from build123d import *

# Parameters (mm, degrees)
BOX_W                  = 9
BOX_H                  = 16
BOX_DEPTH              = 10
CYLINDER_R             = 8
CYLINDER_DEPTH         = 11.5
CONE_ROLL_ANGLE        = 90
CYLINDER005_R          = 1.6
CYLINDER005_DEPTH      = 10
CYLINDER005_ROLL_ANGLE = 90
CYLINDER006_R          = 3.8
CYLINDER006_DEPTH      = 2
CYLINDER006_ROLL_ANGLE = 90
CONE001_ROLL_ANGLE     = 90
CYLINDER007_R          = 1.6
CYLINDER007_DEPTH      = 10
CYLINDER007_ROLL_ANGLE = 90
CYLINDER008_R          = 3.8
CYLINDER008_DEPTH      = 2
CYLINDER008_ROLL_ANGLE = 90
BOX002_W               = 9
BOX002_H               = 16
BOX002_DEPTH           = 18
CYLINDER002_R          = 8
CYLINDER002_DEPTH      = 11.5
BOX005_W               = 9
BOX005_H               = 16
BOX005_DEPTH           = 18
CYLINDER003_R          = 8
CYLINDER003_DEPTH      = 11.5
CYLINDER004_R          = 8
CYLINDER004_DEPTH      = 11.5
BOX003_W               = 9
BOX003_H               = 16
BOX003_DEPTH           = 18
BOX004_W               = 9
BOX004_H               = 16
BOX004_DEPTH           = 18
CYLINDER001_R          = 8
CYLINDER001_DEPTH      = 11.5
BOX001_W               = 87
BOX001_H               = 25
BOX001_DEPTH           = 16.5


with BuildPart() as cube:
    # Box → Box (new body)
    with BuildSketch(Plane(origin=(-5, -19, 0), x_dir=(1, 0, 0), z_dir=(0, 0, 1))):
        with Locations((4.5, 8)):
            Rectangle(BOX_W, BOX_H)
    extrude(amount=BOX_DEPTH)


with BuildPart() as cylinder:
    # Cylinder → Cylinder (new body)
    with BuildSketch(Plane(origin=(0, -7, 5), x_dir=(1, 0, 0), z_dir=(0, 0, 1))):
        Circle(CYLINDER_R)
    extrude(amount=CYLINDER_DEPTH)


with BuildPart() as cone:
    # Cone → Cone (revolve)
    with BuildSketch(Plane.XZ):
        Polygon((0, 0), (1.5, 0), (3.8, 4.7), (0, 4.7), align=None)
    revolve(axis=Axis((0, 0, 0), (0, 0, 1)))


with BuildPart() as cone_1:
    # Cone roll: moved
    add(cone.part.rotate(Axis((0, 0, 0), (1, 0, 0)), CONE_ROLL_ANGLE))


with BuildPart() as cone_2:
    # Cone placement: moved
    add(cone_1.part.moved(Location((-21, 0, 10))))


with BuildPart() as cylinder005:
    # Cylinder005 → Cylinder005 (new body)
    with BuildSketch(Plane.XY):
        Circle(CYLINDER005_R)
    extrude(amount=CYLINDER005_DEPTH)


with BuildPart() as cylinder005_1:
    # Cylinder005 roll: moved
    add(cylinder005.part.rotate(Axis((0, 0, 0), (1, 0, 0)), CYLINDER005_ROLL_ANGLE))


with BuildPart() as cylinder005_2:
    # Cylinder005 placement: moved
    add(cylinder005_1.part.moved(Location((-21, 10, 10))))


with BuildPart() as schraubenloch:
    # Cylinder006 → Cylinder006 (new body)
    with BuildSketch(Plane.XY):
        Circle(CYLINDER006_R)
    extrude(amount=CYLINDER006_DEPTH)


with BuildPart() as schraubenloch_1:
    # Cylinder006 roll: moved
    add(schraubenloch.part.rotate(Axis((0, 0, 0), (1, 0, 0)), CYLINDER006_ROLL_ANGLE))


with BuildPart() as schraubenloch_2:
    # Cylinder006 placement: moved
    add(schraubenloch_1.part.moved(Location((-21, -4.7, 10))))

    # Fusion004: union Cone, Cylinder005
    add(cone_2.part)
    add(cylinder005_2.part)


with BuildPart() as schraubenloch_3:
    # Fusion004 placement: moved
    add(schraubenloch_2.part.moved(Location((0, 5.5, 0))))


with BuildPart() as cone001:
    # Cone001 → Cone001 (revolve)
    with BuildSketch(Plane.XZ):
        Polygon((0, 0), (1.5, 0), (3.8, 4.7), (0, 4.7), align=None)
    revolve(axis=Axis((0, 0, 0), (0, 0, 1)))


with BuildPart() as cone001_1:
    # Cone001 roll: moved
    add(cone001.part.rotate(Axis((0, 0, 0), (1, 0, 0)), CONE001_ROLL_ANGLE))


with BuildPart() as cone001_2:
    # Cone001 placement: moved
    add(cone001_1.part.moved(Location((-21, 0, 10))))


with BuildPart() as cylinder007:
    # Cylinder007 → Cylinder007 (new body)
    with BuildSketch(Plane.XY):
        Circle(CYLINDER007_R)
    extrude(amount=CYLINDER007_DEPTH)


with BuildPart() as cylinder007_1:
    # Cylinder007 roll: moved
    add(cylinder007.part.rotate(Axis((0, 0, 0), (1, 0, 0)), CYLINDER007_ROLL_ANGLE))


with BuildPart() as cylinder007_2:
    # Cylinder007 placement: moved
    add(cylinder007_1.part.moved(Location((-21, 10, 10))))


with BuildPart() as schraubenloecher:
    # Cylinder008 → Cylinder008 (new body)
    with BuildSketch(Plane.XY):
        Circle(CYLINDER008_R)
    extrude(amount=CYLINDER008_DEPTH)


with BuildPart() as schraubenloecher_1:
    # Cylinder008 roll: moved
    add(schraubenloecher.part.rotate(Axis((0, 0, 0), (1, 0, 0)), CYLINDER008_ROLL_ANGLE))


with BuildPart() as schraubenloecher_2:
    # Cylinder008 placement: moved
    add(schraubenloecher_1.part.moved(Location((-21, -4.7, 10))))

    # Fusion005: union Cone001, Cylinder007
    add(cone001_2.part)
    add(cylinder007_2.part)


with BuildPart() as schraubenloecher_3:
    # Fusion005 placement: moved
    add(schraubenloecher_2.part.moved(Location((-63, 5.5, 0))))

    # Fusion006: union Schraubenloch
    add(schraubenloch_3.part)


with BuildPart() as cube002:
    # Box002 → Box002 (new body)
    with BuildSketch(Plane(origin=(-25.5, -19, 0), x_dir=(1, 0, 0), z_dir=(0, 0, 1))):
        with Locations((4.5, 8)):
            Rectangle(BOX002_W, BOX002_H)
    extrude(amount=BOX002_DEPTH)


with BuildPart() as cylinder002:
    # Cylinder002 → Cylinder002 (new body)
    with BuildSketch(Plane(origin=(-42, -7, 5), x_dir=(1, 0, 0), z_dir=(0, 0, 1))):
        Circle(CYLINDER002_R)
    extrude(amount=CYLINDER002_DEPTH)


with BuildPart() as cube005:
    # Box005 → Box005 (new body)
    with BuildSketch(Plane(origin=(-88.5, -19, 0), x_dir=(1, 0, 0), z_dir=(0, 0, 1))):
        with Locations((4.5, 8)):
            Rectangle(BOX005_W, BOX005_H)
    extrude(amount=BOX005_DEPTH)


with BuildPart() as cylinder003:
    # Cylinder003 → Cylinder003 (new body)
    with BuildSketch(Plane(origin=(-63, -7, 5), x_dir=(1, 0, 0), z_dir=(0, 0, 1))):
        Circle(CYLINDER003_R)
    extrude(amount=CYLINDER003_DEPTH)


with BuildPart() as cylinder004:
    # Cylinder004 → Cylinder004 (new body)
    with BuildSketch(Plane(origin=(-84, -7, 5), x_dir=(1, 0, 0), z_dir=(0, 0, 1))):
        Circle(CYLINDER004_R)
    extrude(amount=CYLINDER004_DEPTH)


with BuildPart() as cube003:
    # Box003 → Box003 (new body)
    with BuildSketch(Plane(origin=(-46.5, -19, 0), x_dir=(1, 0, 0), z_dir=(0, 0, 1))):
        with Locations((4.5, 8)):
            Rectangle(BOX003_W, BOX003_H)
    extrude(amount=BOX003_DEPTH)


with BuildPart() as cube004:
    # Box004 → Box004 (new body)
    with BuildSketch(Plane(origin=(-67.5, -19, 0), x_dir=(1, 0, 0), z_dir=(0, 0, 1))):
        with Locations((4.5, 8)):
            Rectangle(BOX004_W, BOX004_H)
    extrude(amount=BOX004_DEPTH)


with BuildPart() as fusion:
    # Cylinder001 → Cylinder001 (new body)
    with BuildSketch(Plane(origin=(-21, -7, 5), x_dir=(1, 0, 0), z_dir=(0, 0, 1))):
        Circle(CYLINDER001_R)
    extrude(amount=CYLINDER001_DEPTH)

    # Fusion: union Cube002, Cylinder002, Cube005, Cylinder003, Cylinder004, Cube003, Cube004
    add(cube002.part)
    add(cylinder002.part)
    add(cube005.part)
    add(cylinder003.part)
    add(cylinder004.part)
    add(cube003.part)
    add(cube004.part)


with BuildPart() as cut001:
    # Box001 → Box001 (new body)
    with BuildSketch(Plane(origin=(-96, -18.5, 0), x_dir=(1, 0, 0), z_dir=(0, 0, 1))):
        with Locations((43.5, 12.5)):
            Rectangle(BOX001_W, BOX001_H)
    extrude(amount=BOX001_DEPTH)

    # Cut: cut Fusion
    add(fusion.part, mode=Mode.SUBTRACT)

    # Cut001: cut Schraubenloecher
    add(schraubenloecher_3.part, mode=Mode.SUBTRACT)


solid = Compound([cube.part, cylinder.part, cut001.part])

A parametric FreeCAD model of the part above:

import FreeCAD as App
import Part
import Sketcher

V = App.Vector

doc = App.newDocument("Part")
body = doc.addObject("PartDesign::Body", "Body")

sketch1 = body.newObject("Sketcher::SketchObject", "Sketch")
sketch1.AttachmentSupport = (doc.getObject("XY_Plane"), [""])
sketch1.MapMode = "FlatFace"
sketch1.addGeometry([
    Part.LineSegment(V(-5, -3, 0), V(-5, -19, 0)),
    Part.LineSegment(V(-5, -19, 0), V(4, -19, 0)),
    Part.LineSegment(V(4, -19, 0), V(4, -3, 0)),
    Part.LineSegment(V(4, -3, 0), V(-5, -3, 0)),
], False)
sketch1.addConstraint([
    Sketcher.Constraint("Coincident", 0, 2, 1, 1),
    Sketcher.Constraint("Coincident", 1, 2, 2, 1),
    Sketcher.Constraint("Coincident", 2, 2, 3, 1),
    Sketcher.Constraint("Coincident", 3, 2, 0, 1),
    Sketcher.Constraint("Vertical", 0),
    Sketcher.Constraint("Horizontal", 1),
    Sketcher.Constraint("Vertical", 2),
    Sketcher.Constraint("Horizontal", 3),
    Sketcher.Constraint("DistanceX", 1, 1, 1, 2, 9.0),
    Sketcher.Constraint("DistanceY", 0, 2, 0, 1, 16.0),
    Sketcher.Constraint("DistanceX", 0, 2, -1, 1, 5.0),
    Sketcher.Constraint("DistanceY", 0, 2, -1, 1, 19.0),
])
pad1 = body.newObject("PartDesign::Pad", "Pad")
pad1.Profile = sketch1
pad1.Length = 10
body2 = doc.addObject("PartDesign::Body", "Body001")

sketch2 = body2.newObject("Sketcher::SketchObject", "Sketch001")
sketch2.AttachmentSupport = (doc.getObject("XY_Plane001"), [""])
sketch2.MapMode = "FlatFace"
sketch2.AttachmentOffset = App.Placement(V(0, 0, 5), App.Rotation())
sketch2.addGeometry(Part.Circle(V(0, -7, 0), V(0, 0, 1), 8), False)
sketch2.addConstraint([
    Sketcher.Constraint("PointOnObject", 0, 3, -2),
    Sketcher.Constraint("Diameter", 0, 16.0),
    Sketcher.Constraint("DistanceY", 0, 3, -1, 1, 7.0),
])
pad2 = body2.newObject("PartDesign::Pad", "Pad001")
pad2.Profile = sketch2
pad2.Length = 11.5
body3 = doc.addObject("PartDesign::Body", "Body002")

sketch3 = body3.newObject("Sketcher::SketchObject", "Sketch002")
sketch3.AttachmentSupport = (doc.getObject("XZ_Plane002"), [""])
sketch3.MapMode = "FlatFace"
sketch3.addGeometry([
    Part.LineSegment(V(0, 0, 0), V(1.5, 0, 0)),
    Part.LineSegment(V(1.5, 0, 0), V(3.8, 4.7, 0)),
    Part.LineSegment(V(3.8, 4.7, 0), V(0, 4.7, 0)),
    Part.LineSegment(V(0, 4.7, 0), V(0, 0, 0)),
], False)
sketch3.addConstraint([
    Sketcher.Constraint("Coincident", 0, 2, 1, 1),
    Sketcher.Constraint("Coincident", 1, 2, 2, 1),
    Sketcher.Constraint("Coincident", 2, 2, 3, 1),
    Sketcher.Constraint("Coincident", 3, 2, 0, 1),
    Sketcher.Constraint("Horizontal", 0),
    Sketcher.Constraint("Horizontal", 2),
    Sketcher.Constraint("Vertical", 3),
    Sketcher.Constraint("Coincident", 3, 2, -1, 1),
    Sketcher.Constraint("DistanceX", 0, 1, 0, 2, 1.5),
    Sketcher.Constraint("DistanceX", 2, 2, 2, 1, 3.8),
    Sketcher.Constraint("DistanceY", 3, 2, 3, 1, 4.7),
])
revolution = body3.newObject("PartDesign::Revolution", "Revolution")
revolution.Profile = sketch3
revolution.ReferenceAxis = (sketch3, ["V_Axis"])
revolution.Angle = 360
body4 = doc.addObject("PartDesign::Body", "Body003")
doc.recompute()

body3.Placement = App.Placement(V(0, 0, 0), App.Rotation(V(1, 0, 0), 90))
boolean = body4.newObject("PartDesign::Boolean", "Boolean")
boolean.Type = "Fuse"
boolean.addObjects([body3])
body5 = doc.addObject("PartDesign::Body", "Body004")
doc.recompute()

body4.Placement = App.Placement(V(-21, 0, 10), App.Rotation(V(0, 0, 1), 0))
boolean2 = body5.newObject("PartDesign::Boolean", "Boolean001")
boolean2.Type = "Fuse"
boolean2.addObjects([body4])
body6 = doc.addObject("PartDesign::Body", "Body005")

sketch4 = body6.newObject("Sketcher::SketchObject", "Sketch003")
sketch4.AttachmentSupport = (doc.getObject("XY_Plane005"), [""])
sketch4.MapMode = "FlatFace"
sketch4.addGeometry(Part.Circle(V(0, 0, 0), V(0, 0, 1), 1.6), False)
sketch4.addConstraint([
    Sketcher.Constraint("Coincident", 0, 3, -1, 1),
    Sketcher.Constraint("Diameter", 0, 3.2),
])
pad3 = body6.newObject("PartDesign::Pad", "Pad002")
pad3.Profile = sketch4
pad3.Length = 10
body7 = doc.addObject("PartDesign::Body", "Body006")
doc.recompute()

body6.Placement = App.Placement(V(0, 0, 0), App.Rotation(V(1, 0, 0), 90))
boolean3 = body7.newObject("PartDesign::Boolean", "Boolean002")
boolean3.Type = "Fuse"
boolean3.addObjects([body6])
body8 = doc.addObject("PartDesign::Body", "Body007")
doc.recompute()

body7.Placement = App.Placement(V(-21, 10, 10), App.Rotation(V(0, 0, 1), 0))
boolean4 = body8.newObject("PartDesign::Boolean", "Boolean003")
boolean4.Type = "Fuse"
boolean4.addObjects([body7])
body9 = doc.addObject("PartDesign::Body", "Body008")

sketch5 = body9.newObject("Sketcher::SketchObject", "Sketch004")
sketch5.AttachmentSupport = (doc.getObject("XY_Plane008"), [""])
sketch5.MapMode = "FlatFace"
sketch5.addGeometry(Part.Circle(V(0, 0, 0), V(0, 0, 1), 3.8), False)
sketch5.addConstraint([
    Sketcher.Constraint("Coincident", 0, 3, -1, 1),
    Sketcher.Constraint("Diameter", 0, 7.6),
])
pad4 = body9.newObject("PartDesign::Pad", "Pad003")
pad4.Profile = sketch5
pad4.Length = 2
body10 = doc.addObject("PartDesign::Body", "Body009")
doc.recompute()

body9.Placement = App.Placement(V(0, 0, 0), App.Rotation(V(1, 0, 0), 90))
boolean5 = body10.newObject("PartDesign::Boolean", "Boolean004")
boolean5.Type = "Fuse"
boolean5.addObjects([body9])
body11 = doc.addObject("PartDesign::Body", "Body010")
doc.recompute()

body10.Placement = App.Placement(V(-21, -4.7, 10), App.Rotation(V(0, 0, 1), 0))
boolean6 = body11.newObject("PartDesign::Boolean", "Boolean005")
boolean6.Type = "Fuse"
boolean6.addObjects([body10])
doc.recompute()

boolean7 = body11.newObject("PartDesign::Boolean", "Boolean006")
boolean7.Type = "Fuse"
boolean7.addObjects([body5])
doc.recompute()

boolean8 = body11.newObject("PartDesign::Boolean", "Boolean007")
boolean8.Type = "Fuse"
boolean8.addObjects([body8])
body12 = doc.addObject("PartDesign::Body", "Body011")
doc.recompute()

body11.Placement = App.Placement(V(0, 5.5, 0), App.Rotation(V(0, 0, 1), 0))
boolean9 = body12.newObject("PartDesign::Boolean", "Boolean008")
boolean9.Type = "Fuse"
boolean9.addObjects([body11])
body13 = doc.addObject("PartDesign::Body", "Body012")

sketch6 = body13.newObject("Sketcher::SketchObject", "Sketch005")
sketch6.AttachmentSupport = (doc.getObject("XZ_Plane012"), [""])
sketch6.MapMode = "FlatFace"
sketch6.addGeometry([
    Part.LineSegment(V(0, 0, 0), V(1.5, 0, 0)),
    Part.LineSegment(V(1.5, 0, 0), V(3.8, 4.7, 0)),
    Part.LineSegment(V(3.8, 4.7, 0), V(0, 4.7, 0)),
    Part.LineSegment(V(0, 4.7, 0), V(0, 0, 0)),
], False)
sketch6.addConstraint([
    Sketcher.Constraint("Coincident", 0, 2, 1, 1),
    Sketcher.Constraint("Coincident", 1, 2, 2, 1),
    Sketcher.Constraint("Coincident", 2, 2, 3, 1),
    Sketcher.Constraint("Coincident", 3, 2, 0, 1),
    Sketcher.Constraint("Horizontal", 0),
    Sketcher.Constraint("Horizontal", 2),
    Sketcher.Constraint("Vertical", 3),
    Sketcher.Constraint("Coincident", 3, 2, -1, 1),
    Sketcher.Constraint("DistanceX", 0, 1, 0, 2, 1.5),
    Sketcher.Constraint("DistanceX", 2, 2, 2, 1, 3.8),
    Sketcher.Constraint("DistanceY", 3, 2, 3, 1, 4.7),
])
revolution2 = body13.newObject("PartDesign::Revolution", "Revolution001")
revolution2.Profile = sketch6
revolution2.ReferenceAxis = (sketch6, ["V_Axis"])
revolution2.Angle = 360
body14 = doc.addObject("PartDesign::Body", "Body013")
doc.recompute()

body13.Placement = App.Placement(V(0, 0, 0), App.Rotation(V(1, 0, 0), 90))
boolean10 = body14.newObject("PartDesign::Boolean", "Boolean009")
boolean10.Type = "Fuse"
boolean10.addObjects([body13])
body15 = doc.addObject("PartDesign::Body", "Body014")
doc.recompute()

body14.Placement = App.Placement(V(-21, 0, 10), App.Rotation(V(0, 0, 1), 0))
boolean11 = body15.newObject("PartDesign::Boolean", "Boolean010")
boolean11.Type = "Fuse"
boolean11.addObjects([body14])
body16 = doc.addObject("PartDesign::Body", "Body015")

sketch7 = body16.newObject("Sketcher::SketchObject", "Sketch006")
sketch7.AttachmentSupport = (doc.getObject("XY_Plane015"), [""])
sketch7.MapMode = "FlatFace"
sketch7.addGeometry(Part.Circle(V(0, 0, 0), V(0, 0, 1), 1.6), False)
sketch7.addConstraint([
    Sketcher.Constraint("Coincident", 0, 3, -1, 1),
    Sketcher.Constraint("Diameter", 0, 3.2),
])
pad5 = body16.newObject("PartDesign::Pad", "Pad004")
pad5.Profile = sketch7
pad5.Length = 10
body17 = doc.addObject("PartDesign::Body", "Body016")
doc.recompute()

body16.Placement = App.Placement(V(0, 0, 0), App.Rotation(V(1, 0, 0), 90))
boolean12 = body17.newObject("PartDesign::Boolean", "Boolean011")
boolean12.Type = "Fuse"
boolean12.addObjects([body16])
body18 = doc.addObject("PartDesign::Body", "Body017")
doc.recompute()

body17.Placement = App.Placement(V(-21, 10, 10), App.Rotation(V(0, 0, 1), 0))
boolean13 = body18.newObject("PartDesign::Boolean", "Boolean012")
boolean13.Type = "Fuse"
boolean13.addObjects([body17])
body19 = doc.addObject("PartDesign::Body", "Body018")

sketch8 = body19.newObject("Sketcher::SketchObject", "Sketch007")
sketch8.AttachmentSupport = (doc.getObject("XY_Plane018"), [""])
sketch8.MapMode = "FlatFace"
sketch8.addGeometry(Part.Circle(V(0, 0, 0), V(0, 0, 1), 3.8), False)
sketch8.addConstraint([
    Sketcher.Constraint("Coincident", 0, 3, -1, 1),
    Sketcher.Constraint("Diameter", 0, 7.6),
])
pad6 = body19.newObject("PartDesign::Pad", "Pad005")
pad6.Profile = sketch8
pad6.Length = 2
body20 = doc.addObject("PartDesign::Body", "Body019")
doc.recompute()

body19.Placement = App.Placement(V(0, 0, 0), App.Rotation(V(1, 0, 0), 90))
boolean14 = body20.newObject("PartDesign::Boolean", "Boolean013")
boolean14.Type = "Fuse"
boolean14.addObjects([body19])
body21 = doc.addObject("PartDesign::Body", "Body020")
doc.recompute()

body20.Placement = App.Placement(V(-21, -4.7, 10), App.Rotation(V(0, 0, 1), 0))
boolean15 = body21.newObject("PartDesign::Boolean", "Boolean014")
boolean15.Type = "Fuse"
boolean15.addObjects([body20])
doc.recompute()

boolean16 = body21.newObject("PartDesign::Boolean", "Boolean015")
boolean16.Type = "Fuse"
boolean16.addObjects([body15])
doc.recompute()

boolean17 = body21.newObject("PartDesign::Boolean", "Boolean016")
boolean17.Type = "Fuse"
boolean17.addObjects([body18])
body22 = doc.addObject("PartDesign::Body", "Body021")
body22.AllowCompound = True
doc.recompute()

body21.Placement = App.Placement(V(-63, 5.5, 0), App.Rotation(V(0, 0, 1), 0))
boolean18 = body22.newObject("PartDesign::Boolean", "Boolean017")
boolean18.Type = "Fuse"
boolean18.addObjects([body21])
doc.recompute()

boolean19 = body22.newObject("PartDesign::Boolean", "Boolean018")
boolean19.Type = "Fuse"
boolean19.addObjects([body12])
body23 = doc.addObject("PartDesign::Body", "Body022")

sketch9 = body23.newObject("Sketcher::SketchObject", "Sketch008")
sketch9.AttachmentSupport = (doc.getObject("XY_Plane022"), [""])
sketch9.MapMode = "FlatFace"
sketch9.addGeometry([
    Part.LineSegment(V(-26, -3, 0), V(-26, -19, 0)),
    Part.LineSegment(V(-26, -19, 0), V(-16, -19, 0)),
    Part.LineSegment(V(-16, -19, 0), V(-16, -3, 0)),
    Part.LineSegment(V(-16, -3, 0), V(-26, -3, 0)),
], False)
sketch9.addConstraint([
    Sketcher.Constraint("Coincident", 0, 2, 1, 1),
    Sketcher.Constraint("Coincident", 1, 2, 2, 1),
    Sketcher.Constraint("Coincident", 2, 2, 3, 1),
    Sketcher.Constraint("Coincident", 3, 2, 0, 1),
    Sketcher.Constraint("Vertical", 0),
    Sketcher.Constraint("Horizontal", 1),
    Sketcher.Constraint("Vertical", 2),
    Sketcher.Constraint("Horizontal", 3),
    Sketcher.Constraint("DistanceX", 1, 1, 1, 2, 9.0),
    Sketcher.Constraint("DistanceY", 0, 2, 0, 1, 16.0),
    Sketcher.Constraint("DistanceY", 0, 2, -1, 1, 19.0),
    Sketcher.Constraint("DistanceX", 0, 2, -1, 1, 25.5),
])
pad7 = body23.newObject("PartDesign::Pad", "Pad006")
pad7.Profile = sketch9
pad7.Length = 18
body24 = doc.addObject("PartDesign::Body", "Body023")

sketch10 = body24.newObject("Sketcher::SketchObject", "Sketch009")
sketch10.AttachmentSupport = (doc.getObject("XY_Plane023"), [""])
sketch10.MapMode = "FlatFace"
sketch10.AttachmentOffset = App.Placement(V(0, 0, 5), App.Rotation())
sketch10.addGeometry(Part.Circle(V(-42, -7, 0), V(0, 0, 1), 8), False)
sketch10.addConstraint([
    Sketcher.Constraint("Diameter", 0, 16.0),
    Sketcher.Constraint("DistanceX", 0, 3, -1, 1, 42.0),
    Sketcher.Constraint("DistanceY", 0, 3, -1, 1, 7.0),
])
pad8 = body24.newObject("PartDesign::Pad", "Pad007")
pad8.Profile = sketch10
pad8.Length = 11.5
body25 = doc.addObject("PartDesign::Body", "Body024")

sketch11 = body25.newObject("Sketcher::SketchObject", "Sketch010")
sketch11.AttachmentSupport = (doc.getObject("XY_Plane024"), [""])
sketch11.MapMode = "FlatFace"
sketch11.addGeometry([
    Part.LineSegment(V(-88, -3, 0), V(-88, -19, 0)),
    Part.LineSegment(V(-88, -19, 0), V(-80, -19, 0)),
    Part.LineSegment(V(-80, -19, 0), V(-80, -3, 0)),
    Part.LineSegment(V(-80, -3, 0), V(-88, -3, 0)),
], False)
sketch11.addConstraint([
    Sketcher.Constraint("Coincident", 0, 2, 1, 1),
    Sketcher.Constraint("Coincident", 1, 2, 2, 1),
    Sketcher.Constraint("Coincident", 2, 2, 3, 1),
    Sketcher.Constraint("Coincident", 3, 2, 0, 1),
    Sketcher.Constraint("Vertical", 0),
    Sketcher.Constraint("Horizontal", 1),
    Sketcher.Constraint("Vertical", 2),
    Sketcher.Constraint("Horizontal", 3),
    Sketcher.Constraint("DistanceX", 1, 1, 1, 2, 9.0),
    Sketcher.Constraint("DistanceY", 0, 2, 0, 1, 16.0),
    Sketcher.Constraint("DistanceY", 0, 2, -1, 1, 19.0),
    Sketcher.Constraint("DistanceX", 0, 2, -1, 1, 88.5),
])
pad9 = body25.newObject("PartDesign::Pad", "Pad008")
pad9.Profile = sketch11
pad9.Length = 18
body26 = doc.addObject("PartDesign::Body", "Body025")

sketch12 = body26.newObject("Sketcher::SketchObject", "Sketch011")
sketch12.AttachmentSupport = (doc.getObject("XY_Plane025"), [""])
sketch12.MapMode = "FlatFace"
sketch12.AttachmentOffset = App.Placement(V(0, 0, 5), App.Rotation())
sketch12.addGeometry(Part.Circle(V(-63, -7, 0), V(0, 0, 1), 8), False)
sketch12.addConstraint([
    Sketcher.Constraint("Diameter", 0, 16.0),
    Sketcher.Constraint("DistanceX", 0, 3, -1, 1, 63.0),
    Sketcher.Constraint("DistanceY", 0, 3, -1, 1, 7.0),
])
pad10 = body26.newObject("PartDesign::Pad", "Pad009")
pad10.Profile = sketch12
pad10.Length = 11.5
body27 = doc.addObject("PartDesign::Body", "Body026")

sketch13 = body27.newObject("Sketcher::SketchObject", "Sketch012")
sketch13.AttachmentSupport = (doc.getObject("XY_Plane026"), [""])
sketch13.MapMode = "FlatFace"
sketch13.AttachmentOffset = App.Placement(V(0, 0, 5), App.Rotation())
sketch13.addGeometry(Part.Circle(V(-84, -7, 0), V(0, 0, 1), 8), False)
sketch13.addConstraint([
    Sketcher.Constraint("Diameter", 0, 16.0),
    Sketcher.Constraint("DistanceX", 0, 3, -1, 1, 84.0),
    Sketcher.Constraint("DistanceY", 0, 3, -1, 1, 7.0),
])
pad11 = body27.newObject("PartDesign::Pad", "Pad010")
pad11.Profile = sketch13
pad11.Length = 11.5
body28 = doc.addObject("PartDesign::Body", "Body027")

sketch14 = body28.newObject("Sketcher::SketchObject", "Sketch013")
sketch14.AttachmentSupport = (doc.getObject("XY_Plane027"), [""])
sketch14.MapMode = "FlatFace"
sketch14.addGeometry([
    Part.LineSegment(V(-46, -3, 0), V(-46, -19, 0)),
    Part.LineSegment(V(-46, -19, 0), V(-38, -19, 0)),
    Part.LineSegment(V(-38, -19, 0), V(-38, -3, 0)),
    Part.LineSegment(V(-38, -3, 0), V(-46, -3, 0)),
], False)
sketch14.addConstraint([
    Sketcher.Constraint("Coincident", 0, 2, 1, 1),
    Sketcher.Constraint("Coincident", 1, 2, 2, 1),
    Sketcher.Constraint("Coincident", 2, 2, 3, 1),
    Sketcher.Constraint("Coincident", 3, 2, 0, 1),
    Sketcher.Constraint("Vertical", 0),
    Sketcher.Constraint("Horizontal", 1),
    Sketcher.Constraint("Vertical", 2),
    Sketcher.Constraint("Horizontal", 3),
    Sketcher.Constraint("DistanceX", 1, 1, 1, 2, 9.0),
    Sketcher.Constraint("DistanceY", 0, 2, 0, 1, 16.0),
    Sketcher.Constraint("DistanceY", 0, 2, -1, 1, 19.0),
    Sketcher.Constraint("DistanceX", 0, 2, -1, 1, 46.5),
])
pad12 = body28.newObject("PartDesign::Pad", "Pad011")
pad12.Profile = sketch14
pad12.Length = 18
body29 = doc.addObject("PartDesign::Body", "Body028")

sketch15 = body29.newObject("Sketcher::SketchObject", "Sketch014")
sketch15.AttachmentSupport = (doc.getObject("XY_Plane028"), [""])
sketch15.MapMode = "FlatFace"
sketch15.addGeometry([
    Part.LineSegment(V(-68, -3, 0), V(-68, -19, 0)),
    Part.LineSegment(V(-68, -19, 0), V(-58, -19, 0)),
    Part.LineSegment(V(-58, -19, 0), V(-58, -3, 0)),
    Part.LineSegment(V(-58, -3, 0), V(-68, -3, 0)),
], False)
sketch15.addConstraint([
    Sketcher.Constraint("Coincident", 0, 2, 1, 1),
    Sketcher.Constraint("Coincident", 1, 2, 2, 1),
    Sketcher.Constraint("Coincident", 2, 2, 3, 1),
    Sketcher.Constraint("Coincident", 3, 2, 0, 1),
    Sketcher.Constraint("Vertical", 0),
    Sketcher.Constraint("Horizontal", 1),
    Sketcher.Constraint("Vertical", 2),
    Sketcher.Constraint("Horizontal", 3),
    Sketcher.Constraint("DistanceX", 1, 1, 1, 2, 9.0),
    Sketcher.Constraint("DistanceY", 0, 2, 0, 1, 16.0),
    Sketcher.Constraint("DistanceY", 0, 2, -1, 1, 19.0),
    Sketcher.Constraint("DistanceX", 0, 2, -1, 1, 67.5),
])
pad13 = body29.newObject("PartDesign::Pad", "Pad012")
pad13.Profile = sketch15
pad13.Length = 18
body30 = doc.addObject("PartDesign::Body", "Body029")
body30.AllowCompound = True

sketch16 = body30.newObject("Sketcher::SketchObject", "Sketch015")
sketch16.AttachmentSupport = (doc.getObject("XY_Plane029"), [""])
sketch16.MapMode = "FlatFace"
sketch16.AttachmentOffset = App.Placement(V(0, 0, 5), App.Rotation())
sketch16.addGeometry(Part.Circle(V(-21, -7, 0), V(0, 0, 1), 8), False)
sketch16.addConstraint([
    Sketcher.Constraint("Diameter", 0, 16.0),
    Sketcher.Constraint("DistanceX", 0, 3, -1, 1, 21.0),
    Sketcher.Constraint("DistanceY", 0, 3, -1, 1, 7.0),
])
pad14 = body30.newObject("PartDesign::Pad", "Pad013")
pad14.Profile = sketch16
pad14.Length = 11.5
doc.recompute()

boolean20 = body30.newObject("PartDesign::Boolean", "Boolean019")
boolean20.Type = "Fuse"
boolean20.addObjects([body23])
doc.recompute()

boolean21 = body30.newObject("PartDesign::Boolean", "Boolean020")
boolean21.Type = "Fuse"
boolean21.addObjects([body24])
doc.recompute()

boolean22 = body30.newObject("PartDesign::Boolean", "Boolean021")
boolean22.Type = "Fuse"
boolean22.addObjects([body25])
doc.recompute()

boolean23 = body30.newObject("PartDesign::Boolean", "Boolean022")
boolean23.Type = "Fuse"
boolean23.addObjects([body26])
doc.recompute()

boolean24 = body30.newObject("PartDesign::Boolean", "Boolean023")
boolean24.Type = "Fuse"
boolean24.addObjects([body27])
doc.recompute()

boolean25 = body30.newObject("PartDesign::Boolean", "Boolean024")
boolean25.Type = "Fuse"
boolean25.addObjects([body28])
doc.recompute()

boolean26 = body30.newObject("PartDesign::Boolean", "Boolean025")
boolean26.Type = "Fuse"
boolean26.addObjects([body29])
body31 = doc.addObject("PartDesign::Body", "Body030")

sketch17 = body31.newObject("Sketcher::SketchObject", "Sketch016")
sketch17.AttachmentSupport = (doc.getObject("XY_Plane030"), [""])
sketch17.MapMode = "FlatFace"
sketch17.addGeometry([
    Part.LineSegment(V(-96, 6, 0), V(-96, -18, 0)),
    Part.LineSegment(V(-96, -18, 0), V(-9, -18, 0)),
    Part.LineSegment(V(-9, -18, 0), V(-9, 6, 0)),
    Part.LineSegment(V(-9, 6, 0), V(-96, 6, 0)),
], False)
sketch17.addConstraint([
    Sketcher.Constraint("Coincident", 0, 2, 1, 1),
    Sketcher.Constraint("Coincident", 1, 2, 2, 1),
    Sketcher.Constraint("Coincident", 2, 2, 3, 1),
    Sketcher.Constraint("Coincident", 3, 2, 0, 1),
    Sketcher.Constraint("Vertical", 0),
    Sketcher.Constraint("Horizontal", 1),
    Sketcher.Constraint("Vertical", 2),
    Sketcher.Constraint("Horizontal", 3),
    Sketcher.Constraint("DistanceX", 1, 1, 1, 2, 87.0),
    Sketcher.Constraint("DistanceY", 0, 2, 0, 1, 25.0),
    Sketcher.Constraint("DistanceX", 0, 2, -1, 1, 96.0),
    Sketcher.Constraint("DistanceY", 0, 2, -1, 1, 18.5),
])
pad15 = body31.newObject("PartDesign::Pad", "Pad014")
pad15.Profile = sketch17
pad15.Length = 16.5
doc.recompute()

boolean27 = body31.newObject("PartDesign::Boolean", "Boolean026")
boolean27.Type = "Cut"
boolean27.addObjects([body30])
doc.recompute()

boolean28 = body31.newObject("PartDesign::Boolean", "Boolean027")
boolean28.Type = "Cut"
boolean28.addObjects([body22])

doc.recompute()
